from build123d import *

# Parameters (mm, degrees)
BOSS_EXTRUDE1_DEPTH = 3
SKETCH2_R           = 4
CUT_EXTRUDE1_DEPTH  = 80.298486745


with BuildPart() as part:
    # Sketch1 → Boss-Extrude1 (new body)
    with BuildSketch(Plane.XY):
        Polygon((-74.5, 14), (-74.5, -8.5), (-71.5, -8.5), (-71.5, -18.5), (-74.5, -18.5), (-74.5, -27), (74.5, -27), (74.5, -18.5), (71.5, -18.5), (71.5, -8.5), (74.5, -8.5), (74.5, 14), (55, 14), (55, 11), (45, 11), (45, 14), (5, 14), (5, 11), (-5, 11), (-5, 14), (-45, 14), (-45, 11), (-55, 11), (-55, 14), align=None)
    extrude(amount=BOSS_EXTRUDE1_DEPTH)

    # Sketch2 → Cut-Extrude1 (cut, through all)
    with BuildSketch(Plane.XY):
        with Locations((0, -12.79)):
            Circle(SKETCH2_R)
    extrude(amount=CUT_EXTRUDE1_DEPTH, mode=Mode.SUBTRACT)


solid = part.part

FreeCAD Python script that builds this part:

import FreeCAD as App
import Part
import Sketcher

doc = App.newDocument("Part")
body = doc.addObject("PartDesign::Body", "Body")

# Sketch on XY plane
sketch1 = doc.addObject("Sketcher::SketchObject", "Sketch")
body.addObject(sketch1)
sketch1.AttachmentSupport = (doc.XY_Plane, [""])
sketch1.MapMode = "FlatFace"
sketch1.addGeometry([
    Part.LineSegment(App.Vector(-74.5, 14, 0), App.Vector(-74.5, -8.5, 0)),  # 0
    Part.LineSegment(App.Vector(-74.5, -8.5, 0), App.Vector(-71.5, -8.5, 0)),  # 1
    Part.LineSegment(App.Vector(-71.5, -8.5, 0), App.Vector(-71.5, -18.5, 0)),  # 2
    Part.LineSegment(App.Vector(-71.5, -18.5, 0), App.Vector(-74.5, -18.5, 0)),  # 3
    Part.LineSegment(App.Vector(-74.5, -18.5, 0), App.Vector(-74.5, -27, 0)),  # 4
    Part.LineSegment(App.Vector(-74.5, -27, 0), App.Vector(74.5, -27, 0)),  # 5
    Part.LineSegment(App.Vector(74.5, -27, 0), App.Vector(74.5, -18.5, 0)),  # 6
    Part.LineSegment(App.Vector(74.5, -18.5, 0), App.Vector(71.5, -18.5, 0)),  # 7
    Part.LineSegment(App.Vector(71.5, -18.5, 0), App.Vector(71.5, -8.5, 0)),  # 8
    Part.LineSegment(App.Vector(71.5, -8.5, 0), App.Vector(74.5, -8.5, 0)),  # 9
    Part.LineSegment(App.Vector(74.5, -8.5, 0), App.Vector(74.5, 14, 0)),  # 10
    Part.LineSegment(App.Vector(74.5, 14, 0), App.Vector(55, 14, 0)),  # 11
    Part.LineSegment(App.Vector(55, 14, 0), App.Vector(55, 11, 0)),  # 12
    Part.LineSegment(App.Vector(55, 11, 0), App.Vector(45, 11, 0)),  # 13
    Part.LineSegment(App.Vector(45, 11, 0), App.Vector(45, 14, 0)),  # 14
    Part.LineSegment(App.Vector(45, 14, 0), App.Vector(5, 14, 0)),  # 15
    Part.LineSegment(App.Vector(5, 14, 0), App.Vector(5, 11, 0)),  # 16
    Part.LineSegment(App.Vector(5, 11, 0), App.Vector(-5, 11, 0)),  # 17
    Part.LineSegment(App.Vector(-5, 11, 0), App.Vector(-5, 14, 0)),  # 18
    Part.LineSegment(App.Vector(-5, 14, 0), App.Vector(-45, 14, 0)),  # 19
    Part.LineSegment(App.Vector(-45, 14, 0), App.Vector(-45, 11, 0)),  # 20
    Part.LineSegment(App.Vector(-45, 11, 0), App.Vector(-55, 11, 0)),  # 21
    Part.LineSegment(App.Vector(-55, 11, 0), App.Vector(-55, 14, 0)),  # 22
    Part.LineSegment(App.Vector(-55, 14, 0), App.Vector(-74.5, 14, 0)),  # 23
], False)
sketch1.addConstraint([
    Sketcher.Constraint("Coincident", 0, 2, 1, 1),
    Sketcher.Constraint("Coincident", 1, 2, 2, 1),
    Sketcher.Constraint("Coincident", 2, 2, 3, 1),
    Sketcher.Constraint("Coincident", 3, 2, 4, 1),
    Sketcher.Constraint("Coincident", 4, 2, 5, 1),
    Sketcher.Constraint("Coincident", 5, 2, 6, 1),
    Sketcher.Constraint("Coincident", 6, 2, 7, 1),
    Sketcher.Constraint("Coincident", 7, 2, 8, 1),
    Sketcher.Constraint("Coincident", 8, 2, 9, 1),
    Sketcher.Constraint("Coincident", 9, 2, 10, 1),
    Sketcher.Constraint("Coincident", 10, 2, 11, 1),
    Sketcher.Constraint("Coincident", 11, 2, 12, 1),
    Sketcher.Constraint("Coincident", 12, 2, 13, 1),
    Sketcher.Constraint("Coincident", 13, 2, 14, 1),
    Sketcher.Constraint("Coincident", 14, 2, 15, 1),
    Sketcher.Constraint("Coincident", 15, 2, 16, 1),
    Sketcher.Constraint("Coincident", 16, 2, 17, 1),
    Sketcher.Constraint("Coincident", 17, 2, 18, 1),
    Sketcher.Constraint("Coincident", 18, 2, 19, 1),
    Sketcher.Constraint("Coincident", 19, 2, 20, 1),
    Sketcher.Constraint("Coincident", 20, 2, 21, 1),
    Sketcher.Constraint("Coincident", 21, 2, 22, 1),
    Sketcher.Constraint("Coincident", 22, 2, 23, 1),
    Sketcher.Constraint("Coincident", 23, 2, 0, 1),
    Sketcher.Constraint("Vertical", 0),
    Sketcher.Constraint("Horizontal", 1),
    Sketcher.Constraint("Vertical", 2),
    Sketcher.Constraint("Horizontal", 3),
    Sketcher.Constraint("Vertical", 4),
    Sketcher.Constraint("Horizontal", 5),
    Sketcher.Constraint("Vertical", 6),
    Sketcher.Constraint("Horizontal", 7),
    Sketcher.Constraint("Vertical", 8),
    Sketcher.Constraint("Horizontal", 9),
    Sketcher.Constraint("Vertical", 10),
    Sketcher.Constraint("Horizontal", 11),
    Sketcher.Constraint("Vertical", 12),
    Sketcher.Constraint("Horizontal", 13),
    Sketcher.Constraint("Vertical", 14),
    Sketcher.Constraint("Horizontal", 15),
    Sketcher.Constraint("Vertical", 16),
    Sketcher.Constraint("Horizontal", 17),
    Sketcher.Constraint("Vertical", 18),
    Sketcher.Constraint("Horizontal", 19),
    Sketcher.Constraint("Vertical", 20),
    Sketcher.Constraint("Horizontal", 21),
    Sketcher.Constraint("Vertical", 22),
    Sketcher.Constraint("Horizontal", 23),
    Sketcher.Constraint("Symmetric", 3, 2, 6, 2, -2),
    Sketcher.Constraint("Symmetric", 1, 2, 8, 2, -2),
    Sketcher.Constraint("Symmetric", 15, 2, 18, 2, -2),
    Sketcher.Constraint("Symmetric", 13, 2, 20, 2, -2),
    Sketcher.Constraint("Symmetric", 11, 2, 22, 2, -2),
    Sketcher.Constraint("Horizontal", 11, 2, 14, 2),
    Sketcher.Constraint("Horizontal", 13, 2, 16, 2),
    Sketcher.Constraint("Vertical", 0, 2, 3, 2),
    Sketcher.Constraint("Vertical", 6, 2, 9, 2),
    Sketcher.Constraint("Equal", 13, 17),
    Sketcher.Constraint("Equal", 21, 2),
    Sketcher.Constraint("Equal", 9, 12),
    Sketcher.Constraint("DistanceX", 1, 1, 1, 2, 3.0),
    Sketcher.Constraint("DistanceX", 5, 1, 5, 2, 149.0),
    Sketcher.Constraint("DistanceX", 13, 2, 13, 1, 10.0),
    Sketcher.Constraint("DistanceX", 15, 2, 15, 1, 40.0),
    Sketcher.Constraint("DistanceY", 0, 2, 0, 1, 22.5),
    Sketcher.Constraint("DistanceY", 4, 2, 4, 1, 8.5),
    Sketcher.Constraint("DistanceY", 4, 2, -1, 1, 27.0),
])
pad1 = doc.addObject("PartDesign::Pad", "Pad")
body.addObject(pad1)
pad1.Profile = sketch1
pad1.Length = 3

# Sketch on XY plane
sketch2 = doc.addObject("Sketcher::SketchObject", "Sketch001")
body.addObject(sketch2)
sketch2.AttachmentSupport = (doc.XY_Plane, [""])
sketch2.MapMode = "FlatFace"
sketch2.addGeometry(Part.Circle(App.Vector(0, -12.8, 0), App.Vector(0, 0, 1), 4), False)
sketch2.addConstraint([
    Sketcher.Constraint("PointOnObject", 0, 3, -2),
    Sketcher.Constraint("Diameter", 0, 8.0),
    Sketcher.Constraint("DistanceY", 0, 3, -1, 1, 12.79),
])
pocket1 = doc.addObject("PartDesign::Pocket", "Pocket")
body.addObject(pocket1)
pocket1.Profile = sketch2
pocket1.Type = "ThroughAll"
pocket1.Reversed = True

doc.recompute()
